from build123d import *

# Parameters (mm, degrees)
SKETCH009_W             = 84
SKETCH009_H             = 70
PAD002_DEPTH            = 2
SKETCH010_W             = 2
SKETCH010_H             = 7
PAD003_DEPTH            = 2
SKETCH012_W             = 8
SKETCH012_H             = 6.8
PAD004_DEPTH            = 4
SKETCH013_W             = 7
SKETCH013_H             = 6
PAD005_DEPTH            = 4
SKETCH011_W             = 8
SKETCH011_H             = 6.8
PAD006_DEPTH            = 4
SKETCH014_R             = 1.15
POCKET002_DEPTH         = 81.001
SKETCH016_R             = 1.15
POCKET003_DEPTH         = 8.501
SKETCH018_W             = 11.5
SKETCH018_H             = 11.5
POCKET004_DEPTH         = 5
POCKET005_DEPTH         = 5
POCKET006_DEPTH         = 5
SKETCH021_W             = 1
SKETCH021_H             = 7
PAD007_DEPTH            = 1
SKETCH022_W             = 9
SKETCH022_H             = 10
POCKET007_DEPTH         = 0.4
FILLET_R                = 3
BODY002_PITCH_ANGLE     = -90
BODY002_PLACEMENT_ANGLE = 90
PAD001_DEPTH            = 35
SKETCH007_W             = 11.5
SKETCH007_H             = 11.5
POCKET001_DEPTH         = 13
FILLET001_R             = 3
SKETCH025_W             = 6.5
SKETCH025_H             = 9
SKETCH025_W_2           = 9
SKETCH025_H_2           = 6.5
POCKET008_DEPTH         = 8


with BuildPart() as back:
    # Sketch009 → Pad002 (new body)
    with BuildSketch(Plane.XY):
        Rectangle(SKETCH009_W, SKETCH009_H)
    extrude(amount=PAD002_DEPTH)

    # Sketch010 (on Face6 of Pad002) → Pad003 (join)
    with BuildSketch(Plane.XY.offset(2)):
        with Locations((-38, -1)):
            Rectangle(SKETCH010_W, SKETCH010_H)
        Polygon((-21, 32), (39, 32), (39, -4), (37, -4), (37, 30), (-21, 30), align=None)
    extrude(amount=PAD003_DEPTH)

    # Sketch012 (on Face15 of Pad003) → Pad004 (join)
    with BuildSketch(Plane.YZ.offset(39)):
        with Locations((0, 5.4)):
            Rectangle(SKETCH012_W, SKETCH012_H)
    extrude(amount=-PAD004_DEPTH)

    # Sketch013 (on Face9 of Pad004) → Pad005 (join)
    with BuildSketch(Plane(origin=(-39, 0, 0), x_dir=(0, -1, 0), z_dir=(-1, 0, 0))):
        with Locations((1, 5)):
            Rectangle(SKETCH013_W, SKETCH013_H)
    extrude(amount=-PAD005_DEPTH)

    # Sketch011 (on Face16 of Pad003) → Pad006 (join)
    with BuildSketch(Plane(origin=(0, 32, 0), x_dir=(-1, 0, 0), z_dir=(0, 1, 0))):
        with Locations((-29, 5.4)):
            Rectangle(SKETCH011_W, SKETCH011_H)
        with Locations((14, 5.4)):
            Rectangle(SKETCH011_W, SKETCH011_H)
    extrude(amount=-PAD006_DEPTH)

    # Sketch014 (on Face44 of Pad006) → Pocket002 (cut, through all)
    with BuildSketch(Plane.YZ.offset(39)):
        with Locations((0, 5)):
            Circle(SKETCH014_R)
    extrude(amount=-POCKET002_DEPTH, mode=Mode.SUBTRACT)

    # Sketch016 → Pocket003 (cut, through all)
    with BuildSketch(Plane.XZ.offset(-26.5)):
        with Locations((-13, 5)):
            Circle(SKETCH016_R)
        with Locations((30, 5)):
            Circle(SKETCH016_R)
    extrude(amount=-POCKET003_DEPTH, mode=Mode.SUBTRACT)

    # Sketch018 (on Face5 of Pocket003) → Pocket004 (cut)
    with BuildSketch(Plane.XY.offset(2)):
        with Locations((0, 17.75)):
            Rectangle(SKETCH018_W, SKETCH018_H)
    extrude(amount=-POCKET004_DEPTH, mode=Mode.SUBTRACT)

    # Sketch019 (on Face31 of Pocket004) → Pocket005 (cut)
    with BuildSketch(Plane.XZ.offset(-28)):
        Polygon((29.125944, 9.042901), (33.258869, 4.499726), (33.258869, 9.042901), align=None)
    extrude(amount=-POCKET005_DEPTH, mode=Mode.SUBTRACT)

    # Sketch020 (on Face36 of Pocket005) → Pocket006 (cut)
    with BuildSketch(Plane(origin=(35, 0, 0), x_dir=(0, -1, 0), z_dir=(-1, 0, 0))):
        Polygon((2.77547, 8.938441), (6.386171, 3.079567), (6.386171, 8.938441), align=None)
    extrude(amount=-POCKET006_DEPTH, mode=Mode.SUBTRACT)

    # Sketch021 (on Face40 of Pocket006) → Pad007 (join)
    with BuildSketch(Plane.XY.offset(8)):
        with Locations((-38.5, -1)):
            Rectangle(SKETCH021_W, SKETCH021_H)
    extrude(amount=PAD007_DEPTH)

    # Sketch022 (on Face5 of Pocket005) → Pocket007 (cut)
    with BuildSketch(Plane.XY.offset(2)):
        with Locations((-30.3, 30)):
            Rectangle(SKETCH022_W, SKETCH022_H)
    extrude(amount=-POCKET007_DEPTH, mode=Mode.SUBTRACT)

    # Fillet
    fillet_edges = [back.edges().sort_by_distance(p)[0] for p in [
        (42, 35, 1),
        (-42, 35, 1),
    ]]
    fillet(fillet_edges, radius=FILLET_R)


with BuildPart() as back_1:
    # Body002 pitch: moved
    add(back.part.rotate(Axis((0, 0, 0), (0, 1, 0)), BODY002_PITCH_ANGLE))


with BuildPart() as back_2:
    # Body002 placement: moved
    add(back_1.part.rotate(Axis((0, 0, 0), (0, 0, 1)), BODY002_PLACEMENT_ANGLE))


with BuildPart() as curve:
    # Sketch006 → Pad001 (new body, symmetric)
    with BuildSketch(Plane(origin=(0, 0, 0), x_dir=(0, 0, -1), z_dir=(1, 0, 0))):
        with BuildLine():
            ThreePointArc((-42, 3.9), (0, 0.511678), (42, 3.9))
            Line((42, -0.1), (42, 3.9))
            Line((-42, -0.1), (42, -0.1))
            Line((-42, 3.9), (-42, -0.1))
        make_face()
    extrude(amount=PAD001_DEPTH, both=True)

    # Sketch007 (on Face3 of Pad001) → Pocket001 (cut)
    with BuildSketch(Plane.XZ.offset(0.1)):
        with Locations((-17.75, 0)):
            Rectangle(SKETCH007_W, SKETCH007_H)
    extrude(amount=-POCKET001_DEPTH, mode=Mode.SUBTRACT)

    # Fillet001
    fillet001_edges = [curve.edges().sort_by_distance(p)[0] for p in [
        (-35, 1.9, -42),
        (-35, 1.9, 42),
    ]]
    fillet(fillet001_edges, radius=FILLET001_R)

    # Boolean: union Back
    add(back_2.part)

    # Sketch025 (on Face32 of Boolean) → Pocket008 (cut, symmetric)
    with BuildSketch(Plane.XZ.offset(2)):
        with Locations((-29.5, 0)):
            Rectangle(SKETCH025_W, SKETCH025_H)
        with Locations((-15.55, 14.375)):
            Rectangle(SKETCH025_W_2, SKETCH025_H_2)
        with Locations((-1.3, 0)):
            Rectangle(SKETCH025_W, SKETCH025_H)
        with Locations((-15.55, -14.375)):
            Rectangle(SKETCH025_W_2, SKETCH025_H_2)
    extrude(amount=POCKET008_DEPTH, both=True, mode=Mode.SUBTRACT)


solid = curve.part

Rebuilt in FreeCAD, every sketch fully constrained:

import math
import FreeCAD as App
import Part
import Sketcher
Q = App.Units.Quantity


def edges_at(feature, points):
    """Names of the edges that pass closest to the given points."""
    edges = feature.Shape.Edges
    near = lambda p: min(range(len(edges)), key=lambda i: edges[i].distToShape(Part.Vertex(*p))[0])
    return sorted({f"Edge{near(p) + 1}" for p in points})


def add_polygon(sketch, points):
    """Adds a closed chain of lines whose ends are joined by coincident constraints."""
    first, n = sketch.GeometryCount, len(points)
    for a, b in zip(points, points[1:] + points[:1]):
        sketch.addGeometry(Part.LineSegment(App.Vector(*a, 0), App.Vector(*b, 0)), False)
    for i in range(n):
        sketch.addConstraint(Sketcher.Constraint("Coincident", first + i, 2, first + (i + 1) % n, 1))

doc = App.newDocument("Part")
body = doc.addObject("PartDesign::Body", "Body")

# Sketch on XY plane
sketch1 = body.newObject("Sketcher::SketchObject", "Sketch")
sketch1.AttachmentSupport = (doc.getObject("XY_Plane"), [""])
sketch1.MapMode = "FlatFace"
add_polygon(sketch1, [(-42, 35), (-42, -35), (42, -35), (42, 35)])  # lines 0-3
sketch1.addConstraint([
    Sketcher.Constraint("Vertical", 0),
    Sketcher.Constraint("Horizontal", 1),
    Sketcher.Constraint("Vertical", 2),
    Sketcher.Constraint("Horizontal", 3),
    Sketcher.Constraint("Symmetric", 0, 2, 2, 2, -1, 1),
    Sketcher.Constraint("DistanceX", 1, 1, 1, 2, Q("84 mm")),
    Sketcher.Constraint("DistanceY", 0, 2, 0, 1, Q("70 mm")),
])
pad1 = body.newObject("PartDesign::Pad", "Pad")
pad1.Profile = sketch1
pad1.Length = 2

# Sketch on XY plane
sketch2 = body.newObject("Sketcher::SketchObject", "Sketch001")
sketch2.AttachmentSupport = (doc.getObject("XY_Plane"), [""])
sketch2.MapMode = "FlatFace"
sketch2.AttachmentOffset = App.Placement(App.Vector(0, 0, 2), App.Rotation())
add_polygon(sketch2, [(-39, 2.5), (-39, -4.5), (-37, -4.5), (-37, 2.5)])  # lines 0-3
add_polygon(sketch2, [(39, 32), (-21, 32), (-21, 30), (37, 30), (37, -4), (39, -4)])  # lines 4-9
sketch2.addConstraint([
    Sketcher.Constraint("Vertical", 0),
    Sketcher.Constraint("Horizontal", 1),
    Sketcher.Constraint("Vertical", 2),
    Sketcher.Constraint("Horizontal", 3),
    Sketcher.Constraint("Horizontal", 4),
    Sketcher.Constraint("Vertical", 5),
    Sketcher.Constraint("Horizontal", 6),
    Sketcher.Constraint("Vertical", 7),
    Sketcher.Constraint("Horizontal", 8),
    Sketcher.Constraint("Vertical", 9),
    Sketcher.Constraint("Equal", 3, 8),
    Sketcher.Constraint("Equal", 8, 5),
    Sketcher.Constraint("DistanceX", 1, 1, 1, 2, Q("2 mm")),
    Sketcher.Constraint("DistanceX", 4, 2, 4, 1, Q("60 mm")),
    Sketcher.Constraint("DistanceY", 0, 2, 0, 1, Q("7 mm")),
    Sketcher.Constraint("DistanceY", 7, 2, 7, 1, Q("34 mm")),
    Sketcher.Constraint("DistanceX", 0, 2, -1, 1, Q("39 mm")),
    Sketcher.Constraint("DistanceX", 4, 2, -1, 1, Q("21 mm")),
    Sketcher.Constraint("DistanceY", -1, 1, 4, 2, Q("32 mm")),
    Sketcher.Constraint("DistanceY", 0, 2, -1, 1, Q("4.5 mm")),
])
pad2 = body.newObject("PartDesign::Pad", "Pad001")
pad2.Profile = sketch2
pad2.Length = 2

# Sketch on YZ plane
sketch3 = body.newObject("Sketcher::SketchObject", "Sketch002")
sketch3.AttachmentSupport = (doc.getObject("YZ_Plane"), [""])
sketch3.MapMode = "FlatFace"
sketch3.AttachmentOffset = App.Placement(App.Vector(0, 0, 39), App.Rotation())
add_polygon(sketch3, [(-4, 9), (-4, 2), (4, 2), (4, 9)])  # lines 0-3
sketch3.addConstraint([
    Sketcher.Constraint("Vertical", 0),
    Sketcher.Constraint("Horizontal", 1),
    Sketcher.Constraint("Vertical", 2),
    Sketcher.Constraint("Horizontal", 3),
    Sketcher.Constraint("DistanceX", 1, 1, 1, 2, Q("8 mm")),
    Sketcher.Constraint("DistanceY", 0, 2, 0, 1, Q("6.8 mm")),
    Sketcher.Constraint("DistanceX", 0, 2, -1, 1, Q("4 mm")),
    Sketcher.Constraint("DistanceY", -1, 1, 0, 2, Q("2 mm")),
])
pad3 = body.newObject("PartDesign::Pad", "Pad002")
pad3.Profile = sketch3
pad3.Length = 4
pad3.Reversed = True

# Sketch on YZ plane
sketch4 = body.newObject("Sketcher::SketchObject", "Sketch003")
sketch4.AttachmentSupport = (doc.getObject("YZ_Plane"), [""])
sketch4.MapMode = "FlatFace"
sketch4.AttachmentOffset = App.Placement(App.Vector(0, 0, -39), App.Rotation())
add_polygon(sketch4, [(2, 8), (2, 2), (-4, 2), (-4, 8)])  # lines 0-3
sketch4.addConstraint([
    Sketcher.Constraint("Vertical", 0),
    Sketcher.Constraint("Horizontal", 1),
    Sketcher.Constraint("Vertical", 2),
    Sketcher.Constraint("Horizontal", 3),
    Sketcher.Constraint("DistanceX", 1, 2, 1, 1, Q("7 mm")),
    Sketcher.Constraint("DistanceY", 0, 2, 0, 1, Q("6 mm")),
    Sketcher.Constraint("DistanceY", -1, 1, 0, 2, Q("2 mm")),
    Sketcher.Constraint("DistanceX", -1, 1, 0, 2, Q("2.5 mm")),
])
pad4 = body.newObject("PartDesign::Pad", "Pad003")
pad4.Profile = sketch4
pad4.Length = 4

# Sketch on XZ plane
sketch5 = body.newObject("Sketcher::SketchObject", "Sketch004")
sketch5.AttachmentSupport = (doc.getObject("XZ_Plane"), [""])
sketch5.MapMode = "FlatFace"
sketch5.AttachmentOffset = App.Placement(App.Vector(0, 0, -32), App.Rotation())
add_polygon(sketch5, [(33, 9), (33, 2), (25, 2), (25, 9)])  # lines 0-3
add_polygon(sketch5, [(-10, 9), (-10, 2), (-18, 2), (-18, 9)])  # lines 4-7
sketch5.addConstraint([
    Sketcher.Constraint("Vertical", 0),
    Sketcher.Constraint("Horizontal", 1),
    Sketcher.Constraint("Vertical", 2),
    Sketcher.Constraint("Horizontal", 3),
    Sketcher.Constraint("Vertical", 4),
    Sketcher.Constraint("Horizontal", 5),
    Sketcher.Constraint("Vertical", 6),
    Sketcher.Constraint("Horizontal", 7),
    Sketcher.Constraint("Horizontal", 1, 2, 4, 2),
    Sketcher.Constraint("Horizontal", 3, 2, 6, 2),
    Sketcher.Constraint("Equal", 3, 5),
    Sketcher.Constraint("DistanceX", 1, 2, 1, 1, Q("8 mm")),
    Sketcher.Constraint("DistanceY", 0, 2, 0, 1, Q("6.8 mm")),
    Sketcher.Constraint("DistanceX", -1, 1, 0, 2, Q("33 mm")),
    Sketcher.Constraint("DistanceY", -1, 1, 0, 2, Q("2 mm")),
    Sketcher.Constraint("DistanceX", 4, 2, -1, 1, Q("10 mm")),
])
pad5 = body.newObject("PartDesign::Pad", "Pad004")
pad5.Profile = sketch5
pad5.Length = 4

# Sketch on YZ plane
sketch6 = body.newObject("Sketcher::SketchObject", "Sketch005")
sketch6.AttachmentSupport = (doc.getObject("YZ_Plane"), [""])
sketch6.MapMode = "FlatFace"
sketch6.AttachmentOffset = App.Placement(App.Vector(0, 0, 39), App.Rotation())
sketch6.addGeometry(Part.Circle(App.Vector(0, 5, 0), App.Vector(0, 0, 1), 1.1), False)
sketch6.addConstraint([
    Sketcher.Constraint("PointOnObject", 0, 3, -2),
    Sketcher.Constraint("Diameter", 0, Q("2.3 mm")),
    Sketcher.Constraint("DistanceY", -1, 1, 0, 3, Q("5 mm")),
])
pocket1 = body.newObject("PartDesign::Pocket", "Pocket")
pocket1.Profile = sketch6
pocket1.Type = "ThroughAll"

# Sketch on XZ plane
sketch7 = body.newObject("Sketcher::SketchObject", "Sketch006")
sketch7.AttachmentSupport = (doc.getObject("XZ_Plane"), [""])
sketch7.MapMode = "FlatFace"
sketch7.AttachmentOffset = App.Placement(App.Vector(0, 0, -26.5), App.Rotation())
sketch7.addGeometry([
    Part.Circle(App.Vector(-13, 5, 0), App.Vector(0, 0, 1), 1.1),
    Part.Circle(App.Vector(30, 5, 0), App.Vector(0, 0, 1), 1.1),
], False)
sketch7.addConstraint([
    Sketcher.Constraint("Equal", 0, 1),
    Sketcher.Constraint("Horizontal", 0, 3, 1, 3),
    Sketcher.Constraint("Diameter", 0, Q("2.3 mm")),
    Sketcher.Constraint("DistanceX", 0, 3, -1, 1, Q("13 mm")),
    Sketcher.Constraint("DistanceY", -1, 1, 0, 3, Q("5 mm")),
    Sketcher.Constraint("DistanceX", -1, 1, 1, 3, Q("30 mm")),
])
pocket2 = body.newObject("PartDesign::Pocket", "Pocket001")
pocket2.Profile = sketch7
pocket2.Type = "ThroughAll"

# Sketch on XY plane
sketch8 = body.newObject("Sketcher::SketchObject", "Sketch007")
sketch8.AttachmentSupport = (doc.getObject("XY_Plane"), [""])
sketch8.MapMode = "FlatFace"
sketch8.AttachmentOffset = App.Placement(App.Vector(0, 0, 2), App.Rotation())
add_polygon(sketch8, [(-6, 24), (-6, 12), (6, 12), (6, 24)])  # lines 0-3
sketch8.addConstraint([
    Sketcher.Constraint("Vertical", 0),
    Sketcher.Constraint("Horizontal", 1),
    Sketcher.Constraint("Vertical", 2),
    Sketcher.Constraint("Horizontal", 3),
    Sketcher.Constraint("Equal", 3, 0),
    Sketcher.Constraint("DistanceX", 1, 1, 1, 2, Q("11.5 mm")),
    Sketcher.Constraint("DistanceY", -1, 1, 0, 2, Q("12 mm")),
    Sketcher.Constraint("DistanceX", 0, 2, -1, 1, Q("5.75 mm")),
])
pocket3 = body.newObject("PartDesign::Pocket", "Pocket002")
pocket3.Profile = sketch8
pocket3.Length = 5

# Sketch on XZ plane
sketch9 = body.newObject("Sketcher::SketchObject", "Sketch008")
sketch9.AttachmentSupport = (doc.getObject("XZ_Plane"), [""])
sketch9.MapMode = "FlatFace"
sketch9.AttachmentOffset = App.Placement(App.Vector(0, 0, -28), App.Rotation())
add_polygon(sketch9, [(29.1, 9), (33.3, 4.5), (33.3, 9)])  # lines 0-2
sketch9.addConstraint([
    Sketcher.Constraint("Vertical", 1),
    Sketcher.Constraint("Horizontal", 2),
    Sketcher.Constraint("DistanceY", -1, 1, 1, 2, Q("9.042901 mm")),
    Sketcher.Constraint("DistanceX", 2, 2, 2, 1, Q("4.132925 mm")),
    Sketcher.Constraint("DistanceY", 1, 1, 1, 2, Q("4.543175 mm")),
    Sketcher.Constraint("DistanceX", -1, 1, 0, 2, Q("33.258869 mm")),
])
pocket4 = body.newObject("PartDesign::Pocket", "Pocket003")
pocket4.Profile = sketch9
pocket4.Length = 5

# Sketch on YZ plane
sketch10 = body.newObject("Sketcher::SketchObject", "Sketch009")
sketch10.AttachmentSupport = (doc.getObject("YZ_Plane"), [""])
sketch10.MapMode = "FlatFace"
sketch10.AttachmentOffset = App.Placement(App.Vector(0, 0, 35), App.Rotation())
add_polygon(sketch10, [(-2.8, 8.9), (-6.4, 3.1), (-6.4, 8.9)])  # lines 0-2
sketch10.addConstraint([
    Sketcher.Constraint("Vertical", 1),
    Sketcher.Constraint("Horizontal", 2),
    Sketcher.Constraint("DistanceX", 2, 1, 2, 2, Q("3.610701 mm")),
    Sketcher.Constraint("Distance", 0, Q("6.882119 mm")),
    Sketcher.Constraint("DistanceX", 0, 2, -1, 1, Q("6.386171 mm")),
    Sketcher.Constraint("DistanceY", -1, 1, 1, 2, Q("8.938441 mm")),
])
pocket5 = body.newObject("PartDesign::Pocket", "Pocket004")
pocket5.Profile = sketch10
pocket5.Length = 5
pocket5.Reversed = True

# Sketch on XY plane
sketch11 = body.newObject("Sketcher::SketchObject", "Sketch010")
sketch11.AttachmentSupport = (doc.getObject("XY_Plane"), [""])
sketch11.MapMode = "FlatFace"
sketch11.AttachmentOffset = App.Placement(App.Vector(0, 0, 8), App.Rotation())
add_polygon(sketch11, [(-39, 2.5), (-39, -4.5), (-38, -4.5), (-38, 2.5)])  # lines 0-3
sketch11.addConstraint([
    Sketcher.Constraint("Vertical", 0),
    Sketcher.Constraint("Horizontal", 1),
    Sketcher.Constraint("Vertical", 2),
    Sketcher.Constraint("Horizontal", 3),
    Sketcher.Constraint("DistanceX", 1, 1, 1, 2, Q("1 mm")),
    Sketcher.Constraint("DistanceY", 0, 2, 0, 1, Q("7 mm")),
    Sketcher.Constraint("DistanceX", 0, 2, -1, 1, Q("39 mm")),
    Sketcher.Constraint("DistanceY", 0, 2, -1, 1, Q("4.5 mm")),
])
pad6 = body.newObject("PartDesign::Pad", "Pad005")
pad6.Profile = sketch11
pad6.Length = 1

# Sketch on XY plane
sketch12 = body.newObject("Sketcher::SketchObject", "Sketch011")
sketch12.AttachmentSupport = (doc.getObject("XY_Plane"), [""])
sketch12.MapMode = "FlatFace"
sketch12.AttachmentOffset = App.Placement(App.Vector(0, 0, 2), App.Rotation())
add_polygon(sketch12, [(-35, 35), (-35, 25), (-26, 25), (-26, 35)])  # lines 0-3
sketch12.addConstraint([
    Sketcher.Constraint("Vertical", 0),
    Sketcher.Constraint("Horizontal", 1),
    Sketcher.Constraint("Vertical", 2),
    Sketcher.Constraint("Horizontal", 3),
    Sketcher.Constraint("DistanceX", 1, 1, 1, 2, Q("9 mm")),
    Sketcher.Constraint("DistanceY", 0, 2, 0, 1, Q("10 mm")),
    Sketcher.Constraint("DistanceY", -1, 1, 0, 2, Q("25 mm")),
    Sketcher.Constraint("DistanceX", 0, 2, -1, 1, Q("34.8 mm")),
])
pocket6 = body.newObject("PartDesign::Pocket", "Pocket005")
pocket6.Profile = sketch12
pocket6.Length = 0.4
doc.recompute()

fillet = body.newObject("PartDesign::Fillet", "Fillet")
fillet.Base = (pocket6, edges_at(pocket6, [(42, 35, 1), (-42, 35, 1)]))
fillet.Radius = 3
body2 = doc.addObject("PartDesign::Body", "Body001")
doc.recompute()

body.Placement = App.Placement(App.Vector(0, 0, 0), App.Rotation(App.Vector(0, 1, 0), 270))
boolean = body2.newObject("PartDesign::Boolean", "Boolean")
boolean.Type = "Fuse"
boolean.addObjects([body])
body3 = doc.addObject("PartDesign::Body", "Body002")
doc.recompute()

body2.Placement = App.Placement(App.Vector(0, 0, 0), App.Rotation(App.Vector(0, 0, 1), 90))
boolean2 = body3.newObject("PartDesign::Boolean", "Boolean001")
boolean2.Type = "Fuse"
boolean2.addObjects([body2])
body4 = doc.addObject("PartDesign::Body", "Body003")

# Sketch on YZ plane
sketch13 = body4.newObject("Sketcher::SketchObject", "Sketch012")
sketch13.AttachmentSupport = (doc.getObject("YZ_Plane003"), [""])
sketch13.MapMode = "FlatFace"
sketch13.addGeometry([
    Part.ArcOfCircle(Part.Circle(App.Vector(262.5, 0, 0), App.Vector(0, 0, 1), 262), math.radians(170.78), math.radians(189.22)),
    Part.LineSegment(App.Vector(3.9, 42, 0), App.Vector(-0.1, 42, 0)),
    Part.LineSegment(App.Vector(-0.1, 42, 0), App.Vector(-0.1, -42, 0)),
    Part.LineSegment(App.Vector(-0.1, -42, 0), App.Vector(3.9, -42, 0)),
], False)
sketch13.addConstraint([
    Sketcher.Constraint("Coincident", 0, 1, 1, 1),
    Sketcher.Constraint("Coincident", 1, 2, 2, 1),
    Sketcher.Constraint("Coincident", 2, 2, 3, 1),
    Sketcher.Constraint("Coincident", 3, 2, 0, 2),
    Sketcher.Constraint("Horizontal", 1),
    Sketcher.Constraint("Vertical", 2),
    Sketcher.Constraint("Horizontal", 3),
    Sketcher.Constraint("Symmetric", 0, 1, 3, 2, -1),
    Sketcher.Constraint("Radius", 0, Q("262 mm")),
    Sketcher.Constraint("DistanceX", 1, 2, 1, 1, Q("4 mm")),
    Sketcher.Constraint("DistanceY", 2, 2, 2, 1, Q("84 mm")),
    Sketcher.Constraint("DistanceX", -1, 1, 0, 1, Q("3.9 mm")),
])
pad7 = body4.newObject("PartDesign::Pad", "Pad006")
pad7.Profile = sketch13
pad7.Length = 70
pad7.Midplane = True

# Sketch on XZ plane
sketch14 = body4.newObject("Sketcher::SketchObject", "Sketch013")
sketch14.AttachmentSupport = (doc.getObject("XZ_Plane003"), [""])
sketch14.MapMode = "FlatFace"
sketch14.AttachmentOffset = App.Placement(App.Vector(0, 0, 0.1), App.Rotation())
add_polygon(sketch14, [(-24, 6), (-24, -6), (-12, -6), (-12, 6)])  # lines 0-3
sketch14.addConstraint([
    Sketcher.Constraint("Vertical", 0),
    Sketcher.Constraint("Horizontal", 1),
    Sketcher.Constraint("Vertical", 2),
    Sketcher.Constraint("Horizontal", 3),
    Sketcher.Constraint("Equal", 3, 0),
    Sketcher.Constraint("DistanceX", 1, 1, 1, 2, Q("11.5 mm")),
    Sketcher.Constraint("DistanceX", 1, 2, -1, 1, Q("12 mm")),
    Sketcher.Constraint("DistanceY", 0, 2, -1, 1, Q("5.75 mm")),
])
pocket7 = body4.newObject("PartDesign::Pocket", "Pocket006")
pocket7.Profile = sketch14
pocket7.Length = 13
doc.recompute()

fillet2 = body4.newObject("PartDesign::Fillet", "Fillet001")
fillet2.Base = (pocket7, edges_at(pocket7, [(-35, 1.9, -42), (-35, 1.9, 42)]))
fillet2.Radius = 3
doc.recompute()

boolean3 = body4.newObject("PartDesign::Boolean", "Boolean002")
boolean3.Type = "Fuse"
boolean3.addObjects([body3])

# Sketch on XZ plane
sketch15 = body4.newObject("Sketcher::SketchObject", "Sketch014")
sketch15.AttachmentSupport = (doc.getObject("XZ_Plane003"), [""])
sketch15.MapMode = "FlatFace"
sketch15.AttachmentOffset = App.Placement(App.Vector(0, 0, 2), App.Rotation())
add_polygon(sketch15, [(-33, 4), (-33, -4), (-26, -4), (-26, 4)])  # lines 0-3
add_polygon(sketch15, [(-20, 18), (-20, 11), (-11, 11), (-11, 18)])  # lines 4-7
add_polygon(sketch15, [(-5, 4), (-5, -4), (2, -4), (2, 4)])  # lines 8-11
add_polygon(sketch15, [(-20, -11), (-20, -18), (-11, -18), (-11, -11)])  # lines 12-15
sketch15.addConstraint([
    Sketcher.Constraint("Vertical", 0),
    Sketcher.Constraint("Horizontal", 1),
    Sketcher.Constraint("Vertical", 2),
    Sketcher.Constraint("Horizontal", 3),
    Sketcher.Constraint("Vertical", 4),
    Sketcher.Constraint("Horizontal", 5),
    Sketcher.Constraint("Vertical", 6),
    Sketcher.Constraint("Horizontal", 7),
    Sketcher.Constraint("Vertical", 8),
    Sketcher.Constraint("Horizontal", 9),
    Sketcher.Constraint("Vertical", 10),
    Sketcher.Constraint("Horizontal", 11),
    Sketcher.Constraint("Vertical", 12),
    Sketcher.Constraint("Horizontal", 13),
    Sketcher.Constraint("Vertical", 14),
    Sketcher.Constraint("Horizontal", 15),
    Sketcher.Constraint("Symmetric", 7, 2, 12, 2, -1),
    Sketcher.Constraint("Symmetric", 5, 2, 14, 2, -1),
    Sketcher.Constraint("Horizontal", 1, 2, 8, 2),
    Sketcher.Constraint("Horizontal", 3, 2, 10, 2),
    Sketcher.Constraint("Equal", 3, 9),
    Sketcher.Constraint("Equal", 15, 0),
    Sketcher.Constraint("Equal", 11, 4),
    Sketcher.Constraint("DistanceX", 5, 1, 5, 2, Q("9 mm")),
    Sketcher.Constraint("DistanceX", 1, 1, 1, 2, Q("6.5 mm")),
    Sketcher.Constraint("DistanceX", 5, 2, 9, 2, Q("13 mm")),
    Sketcher.Constraint("DistanceY", 0, 2, -1, 1, Q("4.5 mm")),
    Sketcher.Constraint("DistanceX", 2, 2, 4, 2, Q("6.2 mm")),
    Sketcher.Constraint("DistanceX", 0, 2, -1, 1, Q("32.75 mm")),
    Sketcher.Constraint("DistanceY", -1, 1, 4, 2, Q("11.125 mm")),
])
pocket8 = body4.newObject("PartDesign::Pocket", "Pocket007")
pocket8.Profile = sketch15
pocket8.Length = 16
pocket8.Midplane = True

doc.recompute()
